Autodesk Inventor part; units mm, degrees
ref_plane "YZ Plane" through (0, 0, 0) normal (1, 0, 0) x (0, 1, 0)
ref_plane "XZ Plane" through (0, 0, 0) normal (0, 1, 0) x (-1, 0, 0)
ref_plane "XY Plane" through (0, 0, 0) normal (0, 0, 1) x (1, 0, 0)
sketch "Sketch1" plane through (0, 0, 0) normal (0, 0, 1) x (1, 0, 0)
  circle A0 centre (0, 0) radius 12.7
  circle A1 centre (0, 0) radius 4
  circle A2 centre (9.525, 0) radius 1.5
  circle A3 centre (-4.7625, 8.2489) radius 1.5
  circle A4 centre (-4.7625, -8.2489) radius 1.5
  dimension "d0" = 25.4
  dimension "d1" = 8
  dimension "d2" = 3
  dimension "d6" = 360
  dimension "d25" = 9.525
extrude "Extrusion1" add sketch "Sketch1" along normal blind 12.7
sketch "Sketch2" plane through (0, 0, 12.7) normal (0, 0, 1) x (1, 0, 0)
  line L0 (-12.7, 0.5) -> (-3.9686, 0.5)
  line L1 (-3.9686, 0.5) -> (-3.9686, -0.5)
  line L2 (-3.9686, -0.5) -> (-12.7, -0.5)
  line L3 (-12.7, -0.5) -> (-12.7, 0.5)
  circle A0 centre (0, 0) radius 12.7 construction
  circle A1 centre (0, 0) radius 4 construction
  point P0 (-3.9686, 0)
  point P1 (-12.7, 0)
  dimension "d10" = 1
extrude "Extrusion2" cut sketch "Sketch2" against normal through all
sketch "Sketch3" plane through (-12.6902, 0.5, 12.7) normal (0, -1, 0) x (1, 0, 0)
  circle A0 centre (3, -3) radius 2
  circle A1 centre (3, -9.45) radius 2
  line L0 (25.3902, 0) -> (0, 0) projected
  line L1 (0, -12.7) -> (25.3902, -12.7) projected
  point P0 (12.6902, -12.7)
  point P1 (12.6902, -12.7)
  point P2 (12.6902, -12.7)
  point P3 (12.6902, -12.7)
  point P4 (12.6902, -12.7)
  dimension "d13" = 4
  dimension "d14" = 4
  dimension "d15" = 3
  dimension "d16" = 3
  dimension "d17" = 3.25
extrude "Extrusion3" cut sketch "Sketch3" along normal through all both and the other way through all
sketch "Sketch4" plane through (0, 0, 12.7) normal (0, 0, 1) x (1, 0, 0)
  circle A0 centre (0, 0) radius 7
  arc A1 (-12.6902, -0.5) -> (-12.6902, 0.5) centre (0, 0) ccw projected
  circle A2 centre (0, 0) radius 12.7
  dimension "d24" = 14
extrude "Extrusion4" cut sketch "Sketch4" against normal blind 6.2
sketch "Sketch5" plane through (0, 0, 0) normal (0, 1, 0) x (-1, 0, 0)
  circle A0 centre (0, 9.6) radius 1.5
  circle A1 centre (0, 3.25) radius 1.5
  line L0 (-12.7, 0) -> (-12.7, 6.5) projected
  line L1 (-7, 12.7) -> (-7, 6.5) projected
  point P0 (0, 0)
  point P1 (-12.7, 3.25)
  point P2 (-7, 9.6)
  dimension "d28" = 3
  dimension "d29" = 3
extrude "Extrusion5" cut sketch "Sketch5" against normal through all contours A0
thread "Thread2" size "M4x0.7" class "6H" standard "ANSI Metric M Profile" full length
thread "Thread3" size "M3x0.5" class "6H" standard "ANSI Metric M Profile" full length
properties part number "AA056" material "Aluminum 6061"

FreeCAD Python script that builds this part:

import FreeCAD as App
import Part
import Sketcher

V = App.Vector

doc = App.newDocument("Part")
body = doc.addObject("PartDesign::Body", "Body")

# Sketch on XY plane
sketch1 = body.newObject("Sketcher::SketchObject", "Sketch")
sketch1.AttachmentSupport = (doc.getObject("XY_Plane"), [""])
sketch1.MapMode = "FlatFace"
sketch1.addGeometry(Part.Circle(V(0, 0, 0), V(0, 0, 1), 12.7), False)
sketch1.addGeometry(Part.Circle(V(-4.8, -8.2, 0), V(0, 0, 1), 1.5), False)
sketch1.addGeometry(Part.Circle(V(0, 0, 0), V(0, 0, 1), 4), False)
sketch1.addGeometry(Part.Circle(V(9.5, 0, 0), V(0, 0, 1), 1.5), False)
sketch1.addGeometry(Part.Circle(V(-4.8, 8.2, 0), V(0, 0, 1), 1.5), False)
sketch1.addConstraint(Sketcher.Constraint("Coincident", 0, 3, -1, 1))
sketch1.addConstraint(Sketcher.Constraint("Coincident", 2, 3, -1, 1))
sketch1.addConstraint(Sketcher.Constraint("Equal", 1, 3))
sketch1.addConstraint(Sketcher.Constraint("Equal", 3, 4))
sketch1.addConstraint(Sketcher.Constraint("Symmetric", 1, 3, 4, 3, -1))
sketch1.addConstraint(Sketcher.Constraint("PointOnObject", 3, 3, -1))
sketch1.addConstraint(Sketcher.Constraint("Diameter", 1, 3.0))
sketch1.addConstraint(Sketcher.Constraint("Diameter", 2, 8.0))
sketch1.addConstraint(Sketcher.Constraint("Diameter", 0, 25.4))
sketch1.addConstraint(Sketcher.Constraint("DistanceX", -1, 1, 3, 3, 9.525))
sketch1.addConstraint(Sketcher.Constraint("DistanceY", 1, 3, -1, 1, 8.249))
sketch1.addConstraint(Sketcher.Constraint("DistanceX", 1, 3, -1, 1, 4.7625))
pad1 = body.newObject("PartDesign::Pad", "Pad")
pad1.Profile = sketch1
pad1.Length = 12.7

# Sketch on XY plane
sketch2 = body.newObject("Sketcher::SketchObject", "Sketch001")
sketch2.AttachmentSupport = (doc.getObject("XY_Plane"), [""])
sketch2.MapMode = "FlatFace"
sketch2.AttachmentOffset = App.Placement(V(0, 0, 12.7), App.Rotation())
sketch2.addGeometry(Part.LineSegment(V(-4, 0.5, 0), V(-12.7, 0.5, 0)), False)
sketch2.addGeometry(Part.LineSegment(V(-12.7, 0.5, 0), V(-12.7, -0.5, 0)), False)
sketch2.addGeometry(Part.LineSegment(V(-12.7, -0.5, 0), V(-4, -0.5, 0)), False)
sketch2.addGeometry(Part.LineSegment(V(-4, -0.5, 0), V(-4, 0.5, 0)), False)
sketch2.addConstraint(Sketcher.Constraint("Coincident", 0, 2, 1, 1))
sketch2.addConstraint(Sketcher.Constraint("Coincident", 1, 2, 2, 1))
sketch2.addConstraint(Sketcher.Constraint("Coincident", 2, 2, 3, 1))
sketch2.addConstraint(Sketcher.Constraint("Coincident", 3, 2, 0, 1))
sketch2.addConstraint(Sketcher.Constraint("Horizontal", 0))
sketch2.addConstraint(Sketcher.Constraint("Vertical", 1))
sketch2.addConstraint(Sketcher.Constraint("Horizontal", 2))
sketch2.addConstraint(Sketcher.Constraint("Vertical", 3))
sketch2.addConstraint(Sketcher.Constraint("DistanceY", 1, 2, 1, 1, 1.0))
sketch2.addConstraint(Sketcher.Constraint("DistanceX", 0, 2, -1, 1, 12.7))
sketch2.addConstraint(Sketcher.Constraint("DistanceY", -1, 1, 0, 2, 0.5))
sketch2.addConstraint(Sketcher.Constraint("DistanceX", 0, 2, 0, 1, 8.7314))
pocket1 = body.newObject("PartDesign::Pocket", "Pocket")
pocket1.Profile = sketch2
pocket1.Type = "ThroughAll"

# Sketch on XZ plane
sketch3 = body.newObject("Sketcher::SketchObject", "Sketch002")
sketch3.AttachmentSupport = (doc.getObject("XZ_Plane"), [""])
sketch3.MapMode = "FlatFace"
sketch3.AttachmentOffset = App.Placement(V(0, 0, -0.5), App.Rotation())
sketch3.addGeometry(Part.Circle(V(-9.7, 9.7, 0), V(0, 0, 1), 2), False)
sketch3.addGeometry(Part.Circle(V(-9.7, 3.2, 0), V(0, 0, 1), 2), False)
sketch3.addConstraint(Sketcher.Constraint("Equal", 0, 1))
sketch3.addConstraint(Sketcher.Constraint("Vertical", 0, 3, 1, 3))
sketch3.addConstraint(Sketcher.Constraint("Diameter", 0, 4.0))
sketch3.addConstraint(Sketcher.Constraint("DistanceY", -1, 1, 1, 3, 3.25))
sketch3.addConstraint(Sketcher.Constraint("DistanceY", -1, 1, 0, 3, 9.7))
sketch3.addConstraint(Sketcher.Constraint("DistanceX", 0, 3, -1, 1, 9.6902))
pocket2 = body.newObject("PartDesign::Pocket", "Pocket001")
pocket2.Profile = sketch3
pocket2.Type = "ThroughAll"
pocket2.Midplane = True

# Sketch on XY plane
sketch4 = body.newObject("Sketcher::SketchObject", "Sketch003")
sketch4.AttachmentSupport = (doc.getObject("XY_Plane"), [""])
sketch4.MapMode = "FlatFace"
sketch4.AttachmentOffset = App.Placement(V(0, 0, 12.7), App.Rotation())
sketch4.addGeometry(Part.Circle(V(0, 0, 0), V(0, 0, 1), 13), False)
sketch4.addGeometry(Part.Circle(V(0, 0, 0), V(0, 0, 1), 7), False)
sketch4.addConstraint(Sketcher.Constraint("Coincident", 0, 3, -1, 1))
sketch4.addConstraint(Sketcher.Constraint("Coincident", 1, 3, -1, 1))
sketch4.addConstraint(Sketcher.Constraint("Diameter", 1, 14.0))
sketch4.addConstraint(Sketcher.Constraint("Diameter", 0, 25.4))
pocket3 = body.newObject("PartDesign::Pocket", "Pocket002")
pocket3.Profile = sketch4
pocket3.Length = 6.2

# Sketch on XZ plane
sketch5 = body.newObject("Sketcher::SketchObject", "Sketch004")
sketch5.AttachmentSupport = (doc.getObject("XZ_Plane"), [""])
sketch5.MapMode = "FlatFace"
sketch5.addGeometry(Part.Circle(V(0, 9.6, 0), V(0, 0, 1), 1.5), False)
sketch5.addConstraint(Sketcher.Constraint("PointOnObject", 0, 3, -2))
sketch5.addConstraint(Sketcher.Constraint("Diameter", 0, 3.0))
sketch5.addConstraint(Sketcher.Constraint("DistanceY", -1, 1, 0, 3, 9.6))
pocket4 = body.newObject("PartDesign::Pocket", "Pocket003")
pocket4.Profile = sketch5
pocket4.Type = "ThroughAll"
pocket4.Reversed = True

doc.recompute()
